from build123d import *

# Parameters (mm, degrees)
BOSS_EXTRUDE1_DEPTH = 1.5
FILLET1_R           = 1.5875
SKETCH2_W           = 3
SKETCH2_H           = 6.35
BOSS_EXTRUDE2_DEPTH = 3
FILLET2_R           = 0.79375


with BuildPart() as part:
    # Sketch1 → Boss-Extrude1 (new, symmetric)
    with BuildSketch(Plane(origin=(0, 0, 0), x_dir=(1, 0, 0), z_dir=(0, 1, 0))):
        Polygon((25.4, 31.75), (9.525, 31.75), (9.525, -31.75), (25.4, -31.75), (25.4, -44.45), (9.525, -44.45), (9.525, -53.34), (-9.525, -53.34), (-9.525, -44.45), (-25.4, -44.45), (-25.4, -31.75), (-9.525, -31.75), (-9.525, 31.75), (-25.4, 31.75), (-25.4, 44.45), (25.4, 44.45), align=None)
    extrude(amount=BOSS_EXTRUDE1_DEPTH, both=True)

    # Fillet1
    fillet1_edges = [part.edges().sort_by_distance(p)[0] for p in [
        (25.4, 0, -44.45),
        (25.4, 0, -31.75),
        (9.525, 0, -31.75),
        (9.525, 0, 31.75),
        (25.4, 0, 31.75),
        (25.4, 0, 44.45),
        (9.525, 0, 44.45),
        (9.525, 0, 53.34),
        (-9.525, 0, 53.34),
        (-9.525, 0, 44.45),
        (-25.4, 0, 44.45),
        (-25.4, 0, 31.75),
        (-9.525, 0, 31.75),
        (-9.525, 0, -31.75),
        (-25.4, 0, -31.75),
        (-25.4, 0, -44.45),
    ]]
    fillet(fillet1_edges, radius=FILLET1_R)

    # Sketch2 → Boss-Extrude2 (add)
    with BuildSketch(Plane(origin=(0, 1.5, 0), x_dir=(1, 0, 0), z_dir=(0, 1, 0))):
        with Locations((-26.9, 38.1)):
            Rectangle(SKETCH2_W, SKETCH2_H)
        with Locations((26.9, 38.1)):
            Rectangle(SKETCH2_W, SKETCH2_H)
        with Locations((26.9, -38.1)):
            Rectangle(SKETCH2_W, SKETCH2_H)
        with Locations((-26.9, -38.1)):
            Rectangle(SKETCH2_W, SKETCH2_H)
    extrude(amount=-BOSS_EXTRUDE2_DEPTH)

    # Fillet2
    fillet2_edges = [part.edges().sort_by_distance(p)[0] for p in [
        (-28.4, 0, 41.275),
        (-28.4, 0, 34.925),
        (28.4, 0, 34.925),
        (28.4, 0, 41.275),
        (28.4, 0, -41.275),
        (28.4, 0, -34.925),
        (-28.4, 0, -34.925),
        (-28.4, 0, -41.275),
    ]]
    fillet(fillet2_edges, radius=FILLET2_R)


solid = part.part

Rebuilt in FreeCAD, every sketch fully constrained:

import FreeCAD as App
import Part
import Sketcher
Q = App.Units.Quantity


def edges_at(feature, points):
    """Names of the edges that pass closest to the given points."""
    edges = feature.Shape.Edges
    near = lambda p: min(range(len(edges)), key=lambda i: edges[i].distToShape(Part.Vertex(*p))[0])
    return sorted({f"Edge{near(p) + 1}" for p in points})

doc = App.newDocument("Part")
params = doc.addObject("Spreadsheet::Sheet", "Params")
for row, (alias, value) in enumerate([
    ("sketch1_width", "2 in"),
    ("sketch1_height", "0.5 in"),
    ("sketch1_height2", "2.5 in"),
    ("sketch1_width2", "0.75 in"),
    ("sketch1_height3", "0.35 in"),
    ("pad1_length", "3 mm"),
    ("fillet_radius", "0.0625 in"),
    ("sketch2_height", "0.25 in"),
    ("pad2_length", "3 mm"),
    ("fillet2_radius", "0.03125 in"),
], start=1):
    params.set(f"A{row}", alias)
    params.set(f"B{row}", "=" + value)
    params.setAlias(f"B{row}", alias)

body = doc.addObject("PartDesign::Body", "Body")

# Sketch on XZ plane
sketch1 = body.newObject("Sketcher::SketchObject", "Sketch")
sketch1.AttachmentSupport = (doc.getObject("XZ_Plane"), [""])
sketch1.MapMode = "FlatFace"
sketch1.addGeometry(Part.LineSegment(App.Vector(10, -32, 0), App.Vector(25, -32, 0)), False)
sketch1.addGeometry(Part.LineSegment(App.Vector(25, -32, 0), App.Vector(25, -44, 0)), False)
sketch1.addGeometry(Part.LineSegment(App.Vector(25, -44, 0), App.Vector(-25, -44, 0)), False)
sketch1.addGeometry(Part.LineSegment(App.Vector(-25, -44, 0), App.Vector(-25, -32, 0)), False)
sketch1.addGeometry(Part.LineSegment(App.Vector(-25, -32, 0), App.Vector(-10, -32, 0)), False)
sketch1.addGeometry(Part.LineSegment(App.Vector(-10, -32, 0), App.Vector(-10, 32, 0)), False)
sketch1.addGeometry(Part.LineSegment(App.Vector(-10, 32, 0), App.Vector(-25, 32, 0)), False)
sketch1.addGeometry(Part.LineSegment(App.Vector(-25, 32, 0), App.Vector(-25, 44, 0)), False)
sketch1.addGeometry(Part.LineSegment(App.Vector(-25, 44, 0), App.Vector(-10, 44, 0)), False)
sketch1.addGeometry(Part.LineSegment(App.Vector(-10, 44, 0), App.Vector(-10, 53, 0)), False)
sketch1.addGeometry(Part.LineSegment(App.Vector(-10, 53, 0), App.Vector(10, 53, 0)), False)
sketch1.addGeometry(Part.LineSegment(App.Vector(10, 53, 0), App.Vector(10, 44, 0)), False)
sketch1.addGeometry(Part.LineSegment(App.Vector(10, 44, 0), App.Vector(25, 44, 0)), False)
sketch1.addGeometry(Part.LineSegment(App.Vector(25, 44, 0), App.Vector(25, 32, 0)), False)
sketch1.addGeometry(Part.LineSegment(App.Vector(25, 32, 0), App.Vector(10, 32, 0)), False)
sketch1.addGeometry(Part.LineSegment(App.Vector(10, 32, 0), App.Vector(10, -32, 0)), False)
sketch1.addConstraint(Sketcher.Constraint("Coincident", 0, 2, 1, 1))
sketch1.addConstraint(Sketcher.Constraint("Coincident", 1, 2, 2, 1))
sketch1.addConstraint(Sketcher.Constraint("Coincident", 2, 2, 3, 1))
sketch1.addConstraint(Sketcher.Constraint("Coincident", 3, 2, 4, 1))
sketch1.addConstraint(Sketcher.Constraint("Coincident", 4, 2, 5, 1))
sketch1.addConstraint(Sketcher.Constraint("Coincident", 5, 2, 6, 1))
sketch1.addConstraint(Sketcher.Constraint("Coincident", 6, 2, 7, 1))
sketch1.addConstraint(Sketcher.Constraint("Coincident", 7, 2, 8, 1))
sketch1.addConstraint(Sketcher.Constraint("Coincident", 8, 2, 9, 1))
sketch1.addConstraint(Sketcher.Constraint("Coincident", 9, 2, 10, 1))
sketch1.addConstraint(Sketcher.Constraint("Coincident", 10, 2, 11, 1))
sketch1.addConstraint(Sketcher.Constraint("Coincident", 11, 2, 12, 1))
sketch1.addConstraint(Sketcher.Constraint("Coincident", 12, 2, 13, 1))
sketch1.addConstraint(Sketcher.Constraint("Coincident", 13, 2, 14, 1))
sketch1.addConstraint(Sketcher.Constraint("Coincident", 14, 2, 15, 1))
sketch1.addConstraint(Sketcher.Constraint("Coincident", 15, 2, 0, 1))
sketch1.addConstraint(Sketcher.Constraint("Horizontal", 0))
sketch1.addConstraint(Sketcher.Constraint("Vertical", 1))
sketch1.addConstraint(Sketcher.Constraint("Horizontal", 2))
sketch1.addConstraint(Sketcher.Constraint("Vertical", 3))
sketch1.addConstraint(Sketcher.Constraint("Horizontal", 4))
sketch1.addConstraint(Sketcher.Constraint("Vertical", 5))
sketch1.addConstraint(Sketcher.Constraint("Horizontal", 6))
sketch1.addConstraint(Sketcher.Constraint("Vertical", 7))
sketch1.addConstraint(Sketcher.Constraint("Horizontal", 8))
sketch1.addConstraint(Sketcher.Constraint("Vertical", 9))
sketch1.addConstraint(Sketcher.Constraint("Horizontal", 10))
sketch1.addConstraint(Sketcher.Constraint("Vertical", 11))
sketch1.addConstraint(Sketcher.Constraint("Horizontal", 12))
sketch1.addConstraint(Sketcher.Constraint("Vertical", 13))
sketch1.addConstraint(Sketcher.Constraint("Horizontal", 14))
sketch1.addConstraint(Sketcher.Constraint("Vertical", 15))
sketch1.addConstraint(Sketcher.Constraint("Symmetric", 0, 2, 6, 2, -1, 1))
sketch1.addConstraint(Sketcher.Constraint("Symmetric", 2, 2, 12, 2, -1, 1))
sketch1.addConstraint(Sketcher.Constraint("Symmetric", 4, 2, 14, 2, -1, 1))
sketch1.addConstraint(Sketcher.Constraint("Symmetric", 0, 2, 3, 2, -2))
sketch1.addConstraint(Sketcher.Constraint("Symmetric", 8, 2, 11, 2, -2))
sketch1.addConstraint(Sketcher.Constraint("Vertical", 5, 2, 8, 2))
sketch1.addConstraint(Sketcher.Constraint("DistanceX", 2, 2, 2, 1, Q("2 in")))
sketch1.addConstraint(Sketcher.Constraint("DistanceY", 1, 2, 1, 1, Q("0.5 in")))
sketch1.addConstraint(Sketcher.Constraint("DistanceY", 5, 1, 5, 2, Q("2.5 in")))
sketch1.addConstraint(Sketcher.Constraint("DistanceX", 10, 1, 10, 2, Q("0.75 in")))
sketch1.addConstraint(Sketcher.Constraint("DistanceY", 9, 1, 9, 2, Q("0.35 in")))
sketch1.setExpression("Constraints[38]", "Params.sketch1_width")
sketch1.setExpression("Constraints[39]", "Params.sketch1_height")
sketch1.setExpression("Constraints[40]", "Params.sketch1_height2")
sketch1.setExpression("Constraints[41]", "Params.sketch1_width2")
sketch1.setExpression("Constraints[42]", "Params.sketch1_height3")
pad1 = body.newObject("PartDesign::Pad", "Pad")
pad1.Profile = sketch1
pad1.setExpression("Length", "Params.pad1_length")
pad1.Midplane = True
doc.recompute()

fillet = body.newObject("PartDesign::Fillet", "Fillet")
fillet.Base = (pad1, edges_at(pad1, [
    (25.4, 0, -44.45),
    (25.4, 0, -31.75),
    (9.525, 0, -31.75),
    (9.525, 0, 31.75),
    (25.4, 0, 31.75),
    (25.4, 0, 44.45),
    (9.525, 0, 44.45),
    (9.525, 0, 53.34),
    (-9.525, 0, 53.34),
    (-9.525, 0, 44.45),
    (-25.4, 0, 44.45),
    (-25.4, 0, 31.75),
    (-9.525, 0, 31.75),
    (-9.525, 0, -31.75),
    (-25.4, 0, -31.75),
    (-25.4, 0, -44.45),
]))
fillet.setExpression("Radius", "Params.fillet_radius")

# Sketch on XZ plane
sketch2 = body.newObject("Sketcher::SketchObject", "Sketch001")
sketch2.AttachmentSupport = (doc.getObject("XZ_Plane"), [""])
sketch2.MapMode = "FlatFace"
sketch2.AttachmentOffset = App.Placement(App.Vector(0, 0, -1.5), App.Rotation())
sketch2.addGeometry(Part.LineSegment(App.Vector(-28.4, -41.3, 0), App.Vector(-28.4, -34.9, 0)), False)
sketch2.addGeometry(Part.LineSegment(App.Vector(-28.4, -34.9, 0), App.Vector(-25.4, -34.9, 0)), False)
sketch2.addGeometry(Part.LineSegment(App.Vector(-25.4, -34.9, 0), App.Vector(-25.4, -41.3, 0)), False)
sketch2.addGeometry(Part.LineSegment(App.Vector(-25.4, -41.3, 0), App.Vector(-28.4, -41.3, 0)), False)
sketch2.addGeometry(Part.LineSegment(App.Vector(25.4, -41.3, 0), App.Vector(25.4, -34.9, 0)), False)
sketch2.addGeometry(Part.LineSegment(App.Vector(25.4, -34.9, 0), App.Vector(28.4, -34.9, 0)), False)
sketch2.addGeometry(Part.LineSegment(App.Vector(28.4, -34.9, 0), App.Vector(28.4, -41.3, 0)), False)
sketch2.addGeometry(Part.LineSegment(App.Vector(28.4, -41.3, 0), App.Vector(25.4, -41.3, 0)), False)
sketch2.addGeometry(Part.LineSegment(App.Vector(25.4, 34.9, 0), App.Vector(25.4, 41.3, 0)), False)
sketch2.addGeometry(Part.LineSegment(App.Vector(25.4, 41.3, 0), App.Vector(28.4, 41.3, 0)), False)
sketch2.addGeometry(Part.LineSegment(App.Vector(28.4, 41.3, 0), App.Vector(28.4, 34.9, 0)), False)
sketch2.addGeometry(Part.LineSegment(App.Vector(28.4, 34.9, 0), App.Vector(25.4, 34.9, 0)), False)
sketch2.addGeometry(Part.LineSegment(App.Vector(-28.4, 34.9, 0), App.Vector(-28.4, 41.3, 0)), False)
sketch2.addGeometry(Part.LineSegment(App.Vector(-28.4, 41.3, 0), App.Vector(-25.4, 41.3, 0)), False)
sketch2.addGeometry(Part.LineSegment(App.Vector(-25.4, 41.3, 0), App.Vector(-25.4, 34.9, 0)), False)
sketch2.addGeometry(Part.LineSegment(App.Vector(-25.4, 34.9, 0), App.Vector(-28.4, 34.9, 0)), False)
sketch2.addConstraint(Sketcher.Constraint("Coincident", 0, 2, 1, 1))
sketch2.addConstraint(Sketcher.Constraint("Coincident", 1, 2, 2, 1))
sketch2.addConstraint(Sketcher.Constraint("Coincident", 2, 2, 3, 1))
sketch2.addConstraint(Sketcher.Constraint("Coincident", 3, 2, 0, 1))
sketch2.addConstraint(Sketcher.Constraint("Coincident", 4, 2, 5, 1))
sketch2.addConstraint(Sketcher.Constraint("Coincident", 5, 2, 6, 1))
sketch2.addConstraint(Sketcher.Constraint("Coincident", 6, 2, 7, 1))
sketch2.addConstraint(Sketcher.Constraint("Coincident", 7, 2, 4, 1))
sketch2.addConstraint(Sketcher.Constraint("Coincident", 8, 2, 9, 1))
sketch2.addConstraint(Sketcher.Constraint("Coincident", 9, 2, 10, 1))
sketch2.addConstraint(Sketcher.Constraint("Coincident", 10, 2, 11, 1))
sketch2.addConstraint(Sketcher.Constraint("Coincident", 11, 2, 8, 1))
sketch2.addConstraint(Sketcher.Constraint("Coincident", 12, 2, 13, 1))
sketch2.addConstraint(Sketcher.Constraint("Coincident", 13, 2, 14, 1))
sketch2.addConstraint(Sketcher.Constraint("Coincident", 14, 2, 15, 1))
sketch2.addConstraint(Sketcher.Constraint("Coincident", 15, 2, 12, 1))
sketch2.addConstraint(Sketcher.Constraint("Vertical", 0))
sketch2.addConstraint(Sketcher.Constraint("Horizontal", 1))
sketch2.addConstraint(Sketcher.Constraint("Vertical", 2))
sketch2.addConstraint(Sketcher.Constraint("Horizontal", 3))
sketch2.addConstraint(Sketcher.Constraint("Vertical", 4))
sketch2.addConstraint(Sketcher.Constraint("Horizontal", 5))
sketch2.addConstraint(Sketcher.Constraint("Vertical", 6))
sketch2.addConstraint(Sketcher.Constraint("Horizontal", 7))
sketch2.addConstraint(Sketcher.Constraint("Vertical", 8))
sketch2.addConstraint(Sketcher.Constraint("Horizontal", 9))
sketch2.addConstraint(Sketcher.Constraint("Vertical", 10))
sketch2.addConstraint(Sketcher.Constraint("Horizontal", 11))
sketch2.addConstraint(Sketcher.Constraint("Vertical", 12))
sketch2.addConstraint(Sketcher.Constraint("Horizontal", 13))
sketch2.addConstraint(Sketcher.Constraint("Vertical", 14))
sketch2.addConstraint(Sketcher.Constraint("Horizontal", 15))
sketch2.addConstraint(Sketcher.Constraint("Symmetric", 2, 2, 8, 2, -1, 1))
sketch2.addConstraint(Sketcher.Constraint("Symmetric", 0, 2, 10, 2, -1, 1))
sketch2.addConstraint(Sketcher.Constraint("Symmetric", 6, 2, 12, 2, -1, 1))
sketch2.addConstraint(Sketcher.Constraint("Symmetric", 4, 2, 14, 2, -1, 1))
sketch2.addConstraint(Sketcher.Constraint("Symmetric", 1, 2, 4, 2, -2))
sketch2.addConstraint(Sketcher.Constraint("Symmetric", 3, 2, 6, 2, -2))
sketch2.addConstraint(Sketcher.Constraint("DistanceX", 1, 2, -1, 1, Q("1 in")))
sketch2.addConstraint(Sketcher.Constraint("DistanceY", 4, 2, 8, 2, Q("3 in")))
sketch2.addConstraint(Sketcher.Constraint("DistanceY", 0, 1, 0, 2, Q("0.25 in")))
sketch2.addConstraint(Sketcher.Constraint("DistanceX", 1, 1, 1, 2, 3.0))
sketch2.setExpression("Constraints[40]", "Params.sketch2_height")
pad2 = body.newObject("PartDesign::Pad", "Pad001")
pad2.Profile = sketch2
pad2.setExpression("Length", "Params.pad2_length")
doc.recompute()

fillet2 = body.newObject("PartDesign::Fillet", "Fillet001")
fillet2.Base = (pad2, edges_at(pad2, [
    (-28.4, 0, 41.275),
    (-28.4, 0, 34.925),
    (28.4, 0, 34.925),
    (28.4, 0, 41.275),
    (28.4, 0, -41.275),
    (28.4, 0, -34.925),
    (-28.4, 0, -34.925),
    (-28.4, 0, -41.275),
]))
fillet2.setExpression("Radius", "Params.fillet2_radius")

doc.recompute()
